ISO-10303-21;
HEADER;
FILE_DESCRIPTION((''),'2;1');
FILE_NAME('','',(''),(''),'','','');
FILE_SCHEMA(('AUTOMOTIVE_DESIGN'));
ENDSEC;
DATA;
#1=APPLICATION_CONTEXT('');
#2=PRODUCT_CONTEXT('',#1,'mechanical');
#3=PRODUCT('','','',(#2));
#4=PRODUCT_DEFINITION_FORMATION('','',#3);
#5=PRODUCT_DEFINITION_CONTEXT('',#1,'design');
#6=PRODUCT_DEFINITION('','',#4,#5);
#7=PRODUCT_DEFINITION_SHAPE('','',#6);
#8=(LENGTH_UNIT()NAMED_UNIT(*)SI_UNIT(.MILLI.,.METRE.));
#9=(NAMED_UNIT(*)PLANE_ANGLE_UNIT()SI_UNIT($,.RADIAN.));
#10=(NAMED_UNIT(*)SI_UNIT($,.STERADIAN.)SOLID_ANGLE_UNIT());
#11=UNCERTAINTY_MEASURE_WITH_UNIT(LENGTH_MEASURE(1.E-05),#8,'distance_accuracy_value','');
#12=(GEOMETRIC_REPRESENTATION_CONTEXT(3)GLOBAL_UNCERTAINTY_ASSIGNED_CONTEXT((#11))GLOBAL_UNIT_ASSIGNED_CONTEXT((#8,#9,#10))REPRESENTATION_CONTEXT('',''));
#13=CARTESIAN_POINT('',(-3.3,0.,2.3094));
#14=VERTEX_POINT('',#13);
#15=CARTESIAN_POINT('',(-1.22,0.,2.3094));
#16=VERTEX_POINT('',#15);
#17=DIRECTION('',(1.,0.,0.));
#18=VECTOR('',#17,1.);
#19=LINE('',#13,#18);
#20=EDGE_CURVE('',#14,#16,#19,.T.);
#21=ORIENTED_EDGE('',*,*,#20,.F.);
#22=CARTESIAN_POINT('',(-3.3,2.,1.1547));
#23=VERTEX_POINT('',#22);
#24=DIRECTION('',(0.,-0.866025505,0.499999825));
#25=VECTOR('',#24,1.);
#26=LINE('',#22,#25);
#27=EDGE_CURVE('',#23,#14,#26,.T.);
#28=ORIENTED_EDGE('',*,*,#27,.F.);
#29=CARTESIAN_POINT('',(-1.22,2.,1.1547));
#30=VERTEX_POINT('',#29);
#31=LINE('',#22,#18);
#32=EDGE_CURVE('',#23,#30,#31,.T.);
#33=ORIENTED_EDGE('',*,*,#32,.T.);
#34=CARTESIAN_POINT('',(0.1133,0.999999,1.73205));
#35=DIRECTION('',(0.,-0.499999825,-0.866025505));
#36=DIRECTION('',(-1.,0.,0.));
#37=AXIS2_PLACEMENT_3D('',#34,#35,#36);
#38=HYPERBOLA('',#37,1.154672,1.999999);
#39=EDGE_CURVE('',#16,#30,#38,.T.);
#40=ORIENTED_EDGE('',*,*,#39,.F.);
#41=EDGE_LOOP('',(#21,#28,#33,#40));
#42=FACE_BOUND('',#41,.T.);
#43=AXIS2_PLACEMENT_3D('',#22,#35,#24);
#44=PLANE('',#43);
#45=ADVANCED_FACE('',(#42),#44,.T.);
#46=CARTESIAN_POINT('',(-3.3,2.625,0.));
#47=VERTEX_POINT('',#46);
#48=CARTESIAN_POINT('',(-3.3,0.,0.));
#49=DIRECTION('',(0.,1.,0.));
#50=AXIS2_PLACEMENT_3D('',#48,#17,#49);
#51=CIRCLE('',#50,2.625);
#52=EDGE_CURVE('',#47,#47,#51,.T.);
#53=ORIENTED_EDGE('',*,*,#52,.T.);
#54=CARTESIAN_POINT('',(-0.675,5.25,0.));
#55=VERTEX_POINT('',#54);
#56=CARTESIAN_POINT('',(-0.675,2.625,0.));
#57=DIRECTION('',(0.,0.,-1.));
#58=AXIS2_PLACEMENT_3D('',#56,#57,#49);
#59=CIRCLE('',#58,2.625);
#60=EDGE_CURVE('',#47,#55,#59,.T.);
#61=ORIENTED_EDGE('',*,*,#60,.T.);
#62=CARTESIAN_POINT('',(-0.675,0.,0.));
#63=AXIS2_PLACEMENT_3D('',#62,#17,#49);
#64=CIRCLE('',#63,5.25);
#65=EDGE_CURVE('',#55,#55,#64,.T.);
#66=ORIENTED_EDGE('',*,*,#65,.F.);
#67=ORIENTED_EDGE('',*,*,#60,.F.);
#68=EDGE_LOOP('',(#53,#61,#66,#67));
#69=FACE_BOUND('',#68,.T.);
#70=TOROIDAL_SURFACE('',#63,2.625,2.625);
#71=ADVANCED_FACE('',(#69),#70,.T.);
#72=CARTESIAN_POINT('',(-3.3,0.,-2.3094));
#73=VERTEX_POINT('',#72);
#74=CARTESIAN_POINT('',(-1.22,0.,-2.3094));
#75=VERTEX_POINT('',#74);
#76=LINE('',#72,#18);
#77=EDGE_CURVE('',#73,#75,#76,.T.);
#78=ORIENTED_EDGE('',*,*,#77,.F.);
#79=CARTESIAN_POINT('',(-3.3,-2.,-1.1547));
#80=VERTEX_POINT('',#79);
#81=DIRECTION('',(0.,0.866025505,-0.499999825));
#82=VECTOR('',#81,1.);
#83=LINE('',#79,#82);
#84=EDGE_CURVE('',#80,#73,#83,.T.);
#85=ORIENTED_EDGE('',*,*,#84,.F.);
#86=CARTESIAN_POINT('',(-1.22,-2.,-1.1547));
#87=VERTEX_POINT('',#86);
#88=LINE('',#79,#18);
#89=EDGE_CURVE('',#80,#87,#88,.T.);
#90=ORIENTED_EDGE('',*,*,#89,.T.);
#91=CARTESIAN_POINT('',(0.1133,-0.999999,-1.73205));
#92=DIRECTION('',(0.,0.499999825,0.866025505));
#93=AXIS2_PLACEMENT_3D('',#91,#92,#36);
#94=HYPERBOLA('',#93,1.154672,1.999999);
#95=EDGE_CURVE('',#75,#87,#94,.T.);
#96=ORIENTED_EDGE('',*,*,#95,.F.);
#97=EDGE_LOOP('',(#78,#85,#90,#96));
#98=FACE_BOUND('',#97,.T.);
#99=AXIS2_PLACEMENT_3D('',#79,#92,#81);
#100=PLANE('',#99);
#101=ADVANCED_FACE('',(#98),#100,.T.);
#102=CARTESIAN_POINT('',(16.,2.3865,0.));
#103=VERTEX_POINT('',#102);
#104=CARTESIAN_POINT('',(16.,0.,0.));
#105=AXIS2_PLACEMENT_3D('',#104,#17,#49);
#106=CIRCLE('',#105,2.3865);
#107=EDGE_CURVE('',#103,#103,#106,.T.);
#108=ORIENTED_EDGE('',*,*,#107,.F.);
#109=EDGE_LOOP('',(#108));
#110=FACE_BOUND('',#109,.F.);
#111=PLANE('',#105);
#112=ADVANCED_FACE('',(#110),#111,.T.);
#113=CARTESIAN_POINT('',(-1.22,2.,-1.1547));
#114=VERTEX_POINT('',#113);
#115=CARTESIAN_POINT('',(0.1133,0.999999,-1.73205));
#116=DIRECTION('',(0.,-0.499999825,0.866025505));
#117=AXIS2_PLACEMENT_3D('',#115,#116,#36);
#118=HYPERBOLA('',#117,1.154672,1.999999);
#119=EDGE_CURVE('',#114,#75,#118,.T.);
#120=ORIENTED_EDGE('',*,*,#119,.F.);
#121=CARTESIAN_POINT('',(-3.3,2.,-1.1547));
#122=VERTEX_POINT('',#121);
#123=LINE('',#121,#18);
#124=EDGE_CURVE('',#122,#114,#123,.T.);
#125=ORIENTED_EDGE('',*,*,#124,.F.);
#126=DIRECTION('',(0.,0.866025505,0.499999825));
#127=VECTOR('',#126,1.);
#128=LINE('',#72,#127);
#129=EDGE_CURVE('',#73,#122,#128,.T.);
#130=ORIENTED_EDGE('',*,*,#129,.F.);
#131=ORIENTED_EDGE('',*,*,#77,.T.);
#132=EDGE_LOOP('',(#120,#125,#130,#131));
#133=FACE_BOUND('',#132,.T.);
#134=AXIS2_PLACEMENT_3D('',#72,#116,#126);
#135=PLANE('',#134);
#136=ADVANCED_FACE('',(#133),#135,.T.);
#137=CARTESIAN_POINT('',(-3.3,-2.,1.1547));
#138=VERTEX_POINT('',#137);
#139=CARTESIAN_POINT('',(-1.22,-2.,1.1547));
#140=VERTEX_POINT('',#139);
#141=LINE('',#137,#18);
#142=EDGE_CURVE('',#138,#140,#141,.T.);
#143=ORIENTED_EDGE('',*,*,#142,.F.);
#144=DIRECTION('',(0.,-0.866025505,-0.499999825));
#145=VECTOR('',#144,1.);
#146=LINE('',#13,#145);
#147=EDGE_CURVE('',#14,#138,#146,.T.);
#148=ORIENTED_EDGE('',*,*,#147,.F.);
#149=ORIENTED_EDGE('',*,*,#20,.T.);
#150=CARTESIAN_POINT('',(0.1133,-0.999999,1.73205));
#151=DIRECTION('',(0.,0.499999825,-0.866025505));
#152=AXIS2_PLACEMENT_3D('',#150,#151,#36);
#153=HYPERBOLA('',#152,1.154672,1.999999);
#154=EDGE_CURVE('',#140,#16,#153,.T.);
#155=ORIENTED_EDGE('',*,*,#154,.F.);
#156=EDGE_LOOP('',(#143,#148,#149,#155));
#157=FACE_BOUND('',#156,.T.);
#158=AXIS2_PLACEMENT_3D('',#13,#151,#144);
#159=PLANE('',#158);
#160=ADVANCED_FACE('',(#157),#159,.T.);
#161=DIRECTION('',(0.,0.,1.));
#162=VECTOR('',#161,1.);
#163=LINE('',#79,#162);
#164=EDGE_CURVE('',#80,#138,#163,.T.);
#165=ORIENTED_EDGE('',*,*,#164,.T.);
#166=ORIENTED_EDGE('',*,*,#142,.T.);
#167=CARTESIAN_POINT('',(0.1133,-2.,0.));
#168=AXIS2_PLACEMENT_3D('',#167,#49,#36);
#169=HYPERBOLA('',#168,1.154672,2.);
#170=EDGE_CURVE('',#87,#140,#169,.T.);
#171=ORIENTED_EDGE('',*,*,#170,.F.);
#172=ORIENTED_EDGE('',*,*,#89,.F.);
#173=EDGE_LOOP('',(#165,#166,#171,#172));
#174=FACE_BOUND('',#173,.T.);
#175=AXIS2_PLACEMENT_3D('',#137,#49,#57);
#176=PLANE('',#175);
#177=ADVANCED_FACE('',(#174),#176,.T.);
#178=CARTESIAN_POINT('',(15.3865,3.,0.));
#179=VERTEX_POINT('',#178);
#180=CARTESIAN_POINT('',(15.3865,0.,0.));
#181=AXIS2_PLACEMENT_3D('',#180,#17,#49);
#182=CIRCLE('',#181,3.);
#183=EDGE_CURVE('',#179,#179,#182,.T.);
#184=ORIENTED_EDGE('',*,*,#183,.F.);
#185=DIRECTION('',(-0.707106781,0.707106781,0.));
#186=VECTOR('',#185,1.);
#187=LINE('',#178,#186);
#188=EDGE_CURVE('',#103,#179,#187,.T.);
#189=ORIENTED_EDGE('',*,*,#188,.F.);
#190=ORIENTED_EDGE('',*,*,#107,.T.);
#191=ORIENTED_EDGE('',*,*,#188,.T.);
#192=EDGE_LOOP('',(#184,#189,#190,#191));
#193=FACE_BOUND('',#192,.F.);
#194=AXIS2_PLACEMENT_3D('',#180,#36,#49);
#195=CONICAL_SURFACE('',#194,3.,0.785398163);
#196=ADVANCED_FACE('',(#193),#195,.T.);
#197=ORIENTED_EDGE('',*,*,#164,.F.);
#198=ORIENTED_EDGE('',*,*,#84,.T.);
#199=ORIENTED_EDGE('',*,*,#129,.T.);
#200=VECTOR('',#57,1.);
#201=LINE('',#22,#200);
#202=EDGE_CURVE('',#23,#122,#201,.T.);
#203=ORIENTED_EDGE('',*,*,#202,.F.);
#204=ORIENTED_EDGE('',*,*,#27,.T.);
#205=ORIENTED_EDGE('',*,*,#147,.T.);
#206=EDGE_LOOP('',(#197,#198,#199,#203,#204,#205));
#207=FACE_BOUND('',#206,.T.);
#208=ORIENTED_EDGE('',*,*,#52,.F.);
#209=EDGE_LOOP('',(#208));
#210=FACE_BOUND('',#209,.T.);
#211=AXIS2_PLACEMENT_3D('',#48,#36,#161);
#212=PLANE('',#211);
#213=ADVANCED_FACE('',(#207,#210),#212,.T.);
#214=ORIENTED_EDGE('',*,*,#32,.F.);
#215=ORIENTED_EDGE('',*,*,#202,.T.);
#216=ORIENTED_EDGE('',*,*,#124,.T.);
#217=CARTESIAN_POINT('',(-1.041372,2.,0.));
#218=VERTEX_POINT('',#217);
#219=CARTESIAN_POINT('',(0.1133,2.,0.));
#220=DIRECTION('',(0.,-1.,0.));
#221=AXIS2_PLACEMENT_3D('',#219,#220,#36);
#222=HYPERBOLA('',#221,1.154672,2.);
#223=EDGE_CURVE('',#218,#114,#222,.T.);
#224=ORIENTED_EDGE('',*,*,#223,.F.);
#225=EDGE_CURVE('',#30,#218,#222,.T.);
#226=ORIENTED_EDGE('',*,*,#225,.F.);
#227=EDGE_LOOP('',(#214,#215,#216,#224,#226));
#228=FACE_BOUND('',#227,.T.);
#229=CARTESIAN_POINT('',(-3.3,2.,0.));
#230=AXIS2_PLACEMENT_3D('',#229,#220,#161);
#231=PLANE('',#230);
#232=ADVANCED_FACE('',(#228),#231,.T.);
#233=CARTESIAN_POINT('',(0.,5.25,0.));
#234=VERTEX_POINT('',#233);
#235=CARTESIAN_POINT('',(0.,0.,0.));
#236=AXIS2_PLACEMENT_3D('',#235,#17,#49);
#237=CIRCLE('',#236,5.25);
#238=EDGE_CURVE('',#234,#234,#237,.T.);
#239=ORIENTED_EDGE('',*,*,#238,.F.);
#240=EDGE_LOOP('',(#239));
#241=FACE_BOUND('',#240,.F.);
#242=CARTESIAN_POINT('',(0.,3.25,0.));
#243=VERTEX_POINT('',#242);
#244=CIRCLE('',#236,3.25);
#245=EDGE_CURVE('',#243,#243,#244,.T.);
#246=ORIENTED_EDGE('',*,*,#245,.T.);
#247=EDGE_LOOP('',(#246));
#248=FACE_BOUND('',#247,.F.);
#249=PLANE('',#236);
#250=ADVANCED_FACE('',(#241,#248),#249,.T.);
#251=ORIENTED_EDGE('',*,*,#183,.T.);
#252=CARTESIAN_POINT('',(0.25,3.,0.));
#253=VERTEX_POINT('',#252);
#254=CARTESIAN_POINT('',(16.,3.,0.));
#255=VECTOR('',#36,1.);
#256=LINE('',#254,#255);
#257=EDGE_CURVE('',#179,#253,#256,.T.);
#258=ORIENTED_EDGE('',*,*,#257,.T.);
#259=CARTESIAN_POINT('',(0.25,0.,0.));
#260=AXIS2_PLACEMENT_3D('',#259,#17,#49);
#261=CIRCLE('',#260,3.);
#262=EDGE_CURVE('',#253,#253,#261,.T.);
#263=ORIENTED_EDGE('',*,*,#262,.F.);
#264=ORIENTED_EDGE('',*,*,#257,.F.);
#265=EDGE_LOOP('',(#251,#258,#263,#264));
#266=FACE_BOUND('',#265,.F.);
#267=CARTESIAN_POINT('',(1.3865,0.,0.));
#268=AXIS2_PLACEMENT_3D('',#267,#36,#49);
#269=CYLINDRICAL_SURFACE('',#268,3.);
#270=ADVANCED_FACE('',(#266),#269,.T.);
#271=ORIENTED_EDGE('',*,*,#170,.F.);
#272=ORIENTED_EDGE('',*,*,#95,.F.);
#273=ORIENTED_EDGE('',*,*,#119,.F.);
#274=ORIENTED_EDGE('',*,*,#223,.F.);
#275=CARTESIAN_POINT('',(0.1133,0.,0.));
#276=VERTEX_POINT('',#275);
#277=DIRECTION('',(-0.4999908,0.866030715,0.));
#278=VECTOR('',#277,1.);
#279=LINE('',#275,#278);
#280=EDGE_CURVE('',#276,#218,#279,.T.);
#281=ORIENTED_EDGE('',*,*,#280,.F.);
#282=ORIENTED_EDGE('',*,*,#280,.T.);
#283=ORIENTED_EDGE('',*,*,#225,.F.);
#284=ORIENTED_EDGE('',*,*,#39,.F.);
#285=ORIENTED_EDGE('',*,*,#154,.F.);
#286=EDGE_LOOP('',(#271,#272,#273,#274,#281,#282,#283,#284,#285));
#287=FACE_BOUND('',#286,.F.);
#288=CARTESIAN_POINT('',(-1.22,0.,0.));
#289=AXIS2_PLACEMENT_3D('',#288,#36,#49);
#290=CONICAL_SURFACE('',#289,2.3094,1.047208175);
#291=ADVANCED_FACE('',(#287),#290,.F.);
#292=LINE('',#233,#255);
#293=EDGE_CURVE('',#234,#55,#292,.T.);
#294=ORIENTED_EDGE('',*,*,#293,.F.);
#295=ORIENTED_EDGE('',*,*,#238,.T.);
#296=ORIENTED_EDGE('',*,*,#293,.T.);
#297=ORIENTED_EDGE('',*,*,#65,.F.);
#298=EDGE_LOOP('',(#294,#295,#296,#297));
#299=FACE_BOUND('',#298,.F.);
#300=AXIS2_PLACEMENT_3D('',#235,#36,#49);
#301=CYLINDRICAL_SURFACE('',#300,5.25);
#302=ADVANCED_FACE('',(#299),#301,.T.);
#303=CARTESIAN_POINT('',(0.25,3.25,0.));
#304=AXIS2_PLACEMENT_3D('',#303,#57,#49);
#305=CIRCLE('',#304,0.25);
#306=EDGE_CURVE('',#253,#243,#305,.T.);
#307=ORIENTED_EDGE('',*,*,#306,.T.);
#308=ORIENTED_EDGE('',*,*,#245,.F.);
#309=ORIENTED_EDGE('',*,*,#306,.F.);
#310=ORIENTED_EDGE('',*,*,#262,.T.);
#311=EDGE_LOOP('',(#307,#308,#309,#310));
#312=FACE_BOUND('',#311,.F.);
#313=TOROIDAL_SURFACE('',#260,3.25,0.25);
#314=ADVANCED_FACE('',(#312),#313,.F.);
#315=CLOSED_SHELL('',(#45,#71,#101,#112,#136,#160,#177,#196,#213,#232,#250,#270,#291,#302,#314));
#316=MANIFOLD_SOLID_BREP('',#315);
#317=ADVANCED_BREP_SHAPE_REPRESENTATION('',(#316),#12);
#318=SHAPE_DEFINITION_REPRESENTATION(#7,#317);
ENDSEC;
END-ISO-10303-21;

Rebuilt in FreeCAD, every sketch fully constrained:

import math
import FreeCAD as App
import Part
import Sketcher

V = App.Vector
Q = App.Units.Quantity


def edges_at(feature, points):
    """Names of the edges that pass closest to the given points."""
    edges = feature.Shape.Edges
    near = lambda p: min(range(len(edges)), key=lambda i: edges[i].distToShape(Part.Vertex(*p))[0])
    return sorted({f"Edge{near(p) + 1}" for p in points})


def add_polygon(sketch, points):
    """Adds a closed chain of lines whose ends are joined by coincident constraints."""
    first, n = sketch.GeometryCount, len(points)
    for a, b in zip(points, points[1:] + points[:1]):
        sketch.addGeometry(Part.LineSegment(App.Vector(*a, 0), App.Vector(*b, 0)), False)
    for i in range(n):
        sketch.addConstraint(Sketcher.Constraint("Coincident", first + i, 2, first + (i + 1) % n, 1))

doc = App.newDocument("Part")
body = doc.addObject("PartDesign::Body", "Body")

# Sketch on XY plane
sketch1 = doc.addObject("Sketcher::SketchObject", "Sketch")
body.addObject(sketch1)
sketch1.AttachmentSupport = (doc.XY_Plane, [""])
sketch1.MapMode = "FlatFace"
add_polygon(sketch1, [(0.1, 0), (16, 0), (16, 3), (0, 3), (0, 5.2), (-3.3, 5.2), (-3.3, 2.3), (-1.2, 2.3)])  # lines 0-7
sketch1.addConstraint([
    Sketcher.Constraint("Horizontal", 0),
    Sketcher.Constraint("Vertical", 1),
    Sketcher.Constraint("Horizontal", 2),
    Sketcher.Constraint("Vertical", 3),
    Sketcher.Constraint("Horizontal", 4),
    Sketcher.Constraint("Vertical", 5),
    Sketcher.Constraint("Horizontal", 6),
    Sketcher.Constraint("PointOnObject", 0, 2, -1),
    Sketcher.Constraint("PointOnObject", 2, 2, -2),
    Sketcher.Constraint("DistanceX", 2, 2, 2, 1, Q("16 mm")),
    Sketcher.Constraint("DistanceX", 4, 2, 4, 1, Q("3.3 mm")),
    Sketcher.Constraint("DistanceX", 6, 1, 6, 2, Q("2.08 mm")),
    Sketcher.Constraint("DistanceY", 1, 1, 1, 2, Q("3 mm")),
    Sketcher.Constraint("Angle", 7, Q("-60.0006 deg")),
    Sketcher.Constraint("DistanceY", 3, 1, 3, 2, Q("2.25 mm")),
    Sketcher.Constraint("DistanceX", 0, 1, 0, 2, Q("15.8867 mm")),
])
revolution = doc.addObject("PartDesign::Revolution", "Revolution")
body.addObject(revolution)
revolution.Profile = sketch1
revolution.ReferenceAxis = (sketch1, ["H_Axis"])
revolution.Angle = 360

# Sketch on YZ plane
sketch2 = doc.addObject("Sketcher::SketchObject", "Sketch001")
body.addObject(sketch2)
sketch2.AttachmentSupport = (doc.YZ_Plane, [""])
sketch2.MapMode = "FlatFace"
sketch2.AttachmentOffset = App.Placement(V(0, 0, -3.3), App.Rotation())
sketch2.addGeometry([
    Part.LineSegment(V(2, 1.2, 0), V(0, 2.3, 0)),  # 0
    Part.ArcOfCircle(Part.Circle(V(0, 0, 0), V(0, 0, 1), 2.3), math.radians(30), math.radians(90)),  # 1
    Part.ArcOfCircle(Part.Circle(V(0, 0, 0), V(0, 0, 1), 2.3), math.radians(90), math.radians(150)),  # 2
    Part.LineSegment(V(0, 2.3, 0), V(-2, 1.2, 0)),  # 3
    Part.ArcOfCircle(Part.Circle(V(0, 0, 0), V(0, 0, 1), 2.3), math.radians(-30), math.radians(30)),  # 4
    Part.LineSegment(V(2, -1.2, 0), V(2, 1.2, 0)),  # 5
    Part.LineSegment(V(-2, 1.2, 0), V(-2, -1.2, 0)),  # 6
    Part.ArcOfCircle(Part.Circle(V(0, 0, 0), V(0, 0, 1), 2.3), math.radians(150), math.radians(210)),  # 7
    Part.LineSegment(V(-2, -1.2, 0), V(0, -2.3, 0)),  # 8
    Part.ArcOfCircle(Part.Circle(V(0, 0, 0), V(0, 0, 1), 2.3), math.radians(-150), math.radians(-90)),  # 9
    Part.ArcOfCircle(Part.Circle(V(0, 0, 0), V(0, 0, 1), 2.3), math.radians(-90), math.radians(-30)),  # 10
    Part.LineSegment(V(0, -2.3, 0), V(2, -1.2, 0)),  # 11
], False)
sketch2.addConstraint([
    Sketcher.Constraint("Coincident", 0, 1, 1, 1),
    Sketcher.Constraint("Coincident", 1, 2, 0, 2),
    Sketcher.Constraint("Coincident", 2, 1, 3, 1),
    Sketcher.Constraint("Coincident", 3, 2, 2, 2),
    Sketcher.Constraint("Coincident", 4, 1, 5, 1),
    Sketcher.Constraint("Coincident", 5, 2, 4, 2),
    Sketcher.Constraint("Coincident", 6, 1, 7, 1),
    Sketcher.Constraint("Coincident", 7, 2, 6, 2),
    Sketcher.Constraint("Coincident", 8, 1, 9, 1),
    Sketcher.Constraint("Coincident", 9, 2, 8, 2),
    Sketcher.Constraint("Coincident", 10, 1, 11, 1),
    Sketcher.Constraint("Coincident", 11, 2, 10, 2),
    Sketcher.Constraint("Vertical", 5),
    Sketcher.Constraint("Vertical", 6),
    Sketcher.Constraint("Coincident", 1, 3, -1, 1),
    Sketcher.Constraint("Coincident", 2, 3, -1, 1),
    Sketcher.Constraint("Coincident", 4, 3, -1, 1),
    Sketcher.Constraint("Coincident", 7, 3, -1, 1),
    Sketcher.Constraint("Coincident", 9, 3, -1, 1),
    Sketcher.Constraint("Coincident", 10, 3, -1, 1),
    Sketcher.Constraint("Coincident", 2, 1, 1, 2),
    Sketcher.Constraint("Coincident", 5, 2, 0, 1),
    Sketcher.Constraint("Coincident", 6, 1, 3, 2),
    Sketcher.Constraint("Coincident", 8, 1, 7, 2),
    Sketcher.Constraint("Coincident", 10, 1, 9, 2),
    Sketcher.Constraint("PointOnObject", 1, 2, -2),
    Sketcher.Constraint("PointOnObject", 9, 2, -2),
    Sketcher.Constraint("Parallel", 0, 8),
    Sketcher.Constraint("Parallel", 3, 11),
    Sketcher.Constraint("Angle", 0, Q("150 deg")),
    Sketcher.Constraint("DistanceX", -1, 1, 0, 1, Q("2 mm")),
])
pad1 = doc.addObject("PartDesign::Pad", "Pad")
body.addObject(pad1)
pad1.Profile = sketch2
pad1.Length = 2.2586
doc.recompute()

fillet = doc.addObject("PartDesign::Fillet", "Fillet")
body.addObject(fillet)
fillet.Base = (pad1, edges_at(pad1, [(-3.3, -5.25, 0)]))
fillet.Radius = 2.625
doc.recompute()

chamfer = doc.addObject("PartDesign::Chamfer", "Chamfer")
body.addObject(chamfer)
chamfer.Base = (fillet, edges_at(fillet, [(16, -3, 0)]))
chamfer.ChamferType = "Two distances"
chamfer.Size = 0.6135
chamfer.Size2 = 0.6135
doc.recompute()

fillet2 = doc.addObject("PartDesign::Fillet", "Fillet001")
body.addObject(fillet2)
fillet2.Base = (chamfer, edges_at(chamfer, [(0, -3, 0)]))
fillet2.Radius = 0.25

doc.recompute()
